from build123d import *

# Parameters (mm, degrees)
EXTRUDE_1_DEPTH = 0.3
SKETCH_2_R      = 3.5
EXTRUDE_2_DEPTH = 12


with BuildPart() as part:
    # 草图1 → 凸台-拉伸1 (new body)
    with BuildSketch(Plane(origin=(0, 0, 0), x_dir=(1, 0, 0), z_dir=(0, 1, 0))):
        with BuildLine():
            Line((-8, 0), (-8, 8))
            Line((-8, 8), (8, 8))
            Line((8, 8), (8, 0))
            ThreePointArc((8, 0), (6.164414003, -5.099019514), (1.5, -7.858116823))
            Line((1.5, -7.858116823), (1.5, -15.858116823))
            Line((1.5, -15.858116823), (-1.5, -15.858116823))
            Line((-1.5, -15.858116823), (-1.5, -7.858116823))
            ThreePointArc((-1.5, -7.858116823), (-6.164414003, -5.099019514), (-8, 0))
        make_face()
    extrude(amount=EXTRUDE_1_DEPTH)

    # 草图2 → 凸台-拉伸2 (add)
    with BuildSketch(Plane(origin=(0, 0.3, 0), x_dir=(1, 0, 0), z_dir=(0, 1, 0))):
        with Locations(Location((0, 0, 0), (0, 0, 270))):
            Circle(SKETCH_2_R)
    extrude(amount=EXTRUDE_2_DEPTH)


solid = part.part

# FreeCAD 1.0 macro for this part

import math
import FreeCAD as App
import Part
import Sketcher
from FreeCAD import Vector

doc = App.newDocument("Part")
body = doc.addObject("PartDesign::Body", "Body")

# Sketch on XZ plane
sketch1 = body.newObject("Sketcher::SketchObject", "Sketch")
sketch1.AttachmentSupport = (doc.getObject("XZ_Plane"), [""])
sketch1.MapMode = "FlatFace"
sketch1.addGeometry(Part.LineSegment(Vector(-8, -8, 0), Vector(-8, 0, 0)), False)
sketch1.addGeometry(Part.ArcOfCircle(Part.Circle(Vector(0, 0, 0), Vector(0, 0, 1), 8), math.radians(101), math.radians(180)), False)
sketch1.addGeometry(Part.LineSegment(Vector(-1.5, 7.9, 0), Vector(-1.5, 15.9, 0)), False)
sketch1.addGeometry(Part.LineSegment(Vector(-1.5, 15.9, 0), Vector(1.5, 15.9, 0)), False)
sketch1.addGeometry(Part.LineSegment(Vector(1.5, 15.9, 0), Vector(1.5, 7.9, 0)), False)
sketch1.addGeometry(Part.ArcOfCircle(Part.Circle(Vector(0, 0, 0), Vector(0, 0, 1), 8), math.radians(0), math.radians(79)), False)
sketch1.addGeometry(Part.LineSegment(Vector(8, 0, 0), Vector(8, -8, 0)), False)
sketch1.addGeometry(Part.LineSegment(Vector(8, -8, 0), Vector(-8, -8, 0)), False)
sketch1.addConstraint(Sketcher.Constraint("Tangent", 0, 2, 1, 2))
sketch1.addConstraint(Sketcher.Constraint("Coincident", 1, 1, 2, 1))
sketch1.addConstraint(Sketcher.Constraint("Coincident", 2, 2, 3, 1))
sketch1.addConstraint(Sketcher.Constraint("Coincident", 3, 2, 4, 1))
sketch1.addConstraint(Sketcher.Constraint("Coincident", 4, 2, 5, 2))
sketch1.addConstraint(Sketcher.Constraint("Tangent", 5, 1, 6, 1))
sketch1.addConstraint(Sketcher.Constraint("Coincident", 6, 2, 7, 1))
sketch1.addConstraint(Sketcher.Constraint("Coincident", 7, 2, 0, 1))
sketch1.addConstraint(Sketcher.Constraint("Vertical", 0))
sketch1.addConstraint(Sketcher.Constraint("Vertical", 2))
sketch1.addConstraint(Sketcher.Constraint("Horizontal", 3))
sketch1.addConstraint(Sketcher.Constraint("Vertical", 4))
sketch1.addConstraint(Sketcher.Constraint("Vertical", 6))
sketch1.addConstraint(Sketcher.Constraint("Horizontal", 7))
sketch1.addConstraint(Sketcher.Constraint("Coincident", 1, 3, -1, 1))
sketch1.addConstraint(Sketcher.Constraint("Coincident", 5, 3, -1, 1))
sketch1.addConstraint(Sketcher.Constraint("Equal", 1, 5))
sketch1.addConstraint(Sketcher.Constraint("Horizontal", 1, 1, 4, 2))
sketch1.addConstraint(Sketcher.Constraint("Equal", 0, 2))
sketch1.addConstraint(Sketcher.Constraint("Radius", 1, 8.0))
sketch1.addConstraint(Sketcher.Constraint("DistanceX", 3, 1, 3, 2, 3.0))
sketch1.addConstraint(Sketcher.Constraint("DistanceY", 0, 1, 0, 2, 8.0))
pad1 = body.newObject("PartDesign::Pad", "Pad")
pad1.Profile = sketch1
pad1.Length = 0.3
pad1.Reversed = True

# Sketch on XZ plane
sketch2 = body.newObject("Sketcher::SketchObject", "Sketch001")
sketch2.AttachmentSupport = (doc.getObject("XZ_Plane"), [""])
sketch2.MapMode = "FlatFace"
sketch2.AttachmentOffset = App.Placement(Vector(0, 0, -0.3), App.Rotation())
sketch2.addGeometry(Part.Circle(Vector(0, 0, 0), Vector(0, 0, 1), 3.5), False)
sketch2.addConstraint(Sketcher.Constraint("Coincident", 0, 3, -1, 1))
sketch2.addConstraint(Sketcher.Constraint("Diameter", 0, 7.0))
pad2 = body.newObject("PartDesign::Pad", "Pad001")
pad2.Profile = sketch2
pad2.Length = 12
pad2.Reversed = True

doc.recompute()
